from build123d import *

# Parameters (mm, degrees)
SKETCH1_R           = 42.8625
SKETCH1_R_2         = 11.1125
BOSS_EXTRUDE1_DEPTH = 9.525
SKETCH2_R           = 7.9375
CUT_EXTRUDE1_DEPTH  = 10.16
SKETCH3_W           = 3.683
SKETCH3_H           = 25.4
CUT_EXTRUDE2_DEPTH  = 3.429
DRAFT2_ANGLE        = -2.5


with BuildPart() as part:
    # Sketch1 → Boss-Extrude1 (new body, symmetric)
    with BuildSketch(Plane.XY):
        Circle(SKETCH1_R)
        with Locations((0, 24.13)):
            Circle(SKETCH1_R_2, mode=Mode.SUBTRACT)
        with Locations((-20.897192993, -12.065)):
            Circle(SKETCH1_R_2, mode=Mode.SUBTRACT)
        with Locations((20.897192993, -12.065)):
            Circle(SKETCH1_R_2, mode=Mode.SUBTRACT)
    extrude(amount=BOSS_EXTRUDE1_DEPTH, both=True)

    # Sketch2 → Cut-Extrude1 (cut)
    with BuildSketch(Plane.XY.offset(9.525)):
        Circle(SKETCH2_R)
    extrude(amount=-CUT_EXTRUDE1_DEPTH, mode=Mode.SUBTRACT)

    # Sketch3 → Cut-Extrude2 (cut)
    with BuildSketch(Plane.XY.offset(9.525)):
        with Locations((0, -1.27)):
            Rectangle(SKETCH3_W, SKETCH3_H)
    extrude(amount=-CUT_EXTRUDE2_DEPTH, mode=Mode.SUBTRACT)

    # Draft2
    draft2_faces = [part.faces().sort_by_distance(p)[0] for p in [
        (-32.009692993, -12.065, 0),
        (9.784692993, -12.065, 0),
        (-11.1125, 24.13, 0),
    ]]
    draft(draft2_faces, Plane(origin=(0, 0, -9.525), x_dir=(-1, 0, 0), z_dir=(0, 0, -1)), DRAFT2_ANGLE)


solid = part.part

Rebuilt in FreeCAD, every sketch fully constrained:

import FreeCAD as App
import Part
import Sketcher

V = App.Vector
Q = App.Units.Quantity


def faces_at(feature, points):
    """Names of the faces that lie closest to the given points."""
    faces = feature.Shape.Faces
    near = lambda p: min(range(len(faces)), key=lambda i: faces[i].distToShape(Part.Vertex(*p))[0])
    return sorted({f"Face{near(p) + 1}" for p in points})


def add_polygon(sketch, points):
    """Adds a closed chain of lines whose ends are joined by coincident constraints."""
    first, n = sketch.GeometryCount, len(points)
    for a, b in zip(points, points[1:] + points[:1]):
        sketch.addGeometry(Part.LineSegment(App.Vector(*a, 0), App.Vector(*b, 0)), False)
    for i in range(n):
        sketch.addConstraint(Sketcher.Constraint("Coincident", first + i, 2, first + (i + 1) % n, 1))

doc = App.newDocument("Part")
params = doc.addObject("Spreadsheet::Sheet", "Params")
for row, (alias, value) in enumerate([
    ("sketch1_diameter", "3.375 in"),
    ("sketch1_diameter2", "0.875 in"),
    ("pad1_length", "0.75 in"),
    ("sketch2_diameter", "0.625 in"),
    ("pocket1_length", "0.4 in"),
    ("sketch3_height", "1 in"),
    ("sketch3_width", "0.145 in"),
    ("pocket2_length", "0.135 in"),
    ("draft_angle", "2.5 deg"),
], start=1):
    params.set(f"A{row}", alias)
    params.set(f"B{row}", "=" + value)
    params.setAlias(f"B{row}", alias)

body = doc.addObject("PartDesign::Body", "Body")

# Sketch on XY plane
sketch1 = doc.addObject("Sketcher::SketchObject", "Sketch")
body.addObject(sketch1)
sketch1.AttachmentSupport = (doc.XY_Plane, [""])
sketch1.MapMode = "FlatFace"
sketch1.addGeometry(Part.Circle(V(0, 0, 0), V(0, 0, 1), 43), False)
sketch1.addGeometry(Part.Circle(V(-21, -12, 0), V(0, 0, 1), 11), False)
sketch1.addGeometry(Part.Circle(V(21, -12, 0), V(0, 0, 1), 11), False)
sketch1.addGeometry(Part.Circle(V(0, 24, 0), V(0, 0, 1), 11), False)
sketch1.addConstraint(Sketcher.Constraint("Coincident", 0, 3, -1, 1))
sketch1.addConstraint(Sketcher.Constraint("Equal", 1, 2))
sketch1.addConstraint(Sketcher.Constraint("Equal", 2, 3))
sketch1.addConstraint(Sketcher.Constraint("Symmetric", 1, 3, 2, 3, -2))
sketch1.addConstraint(Sketcher.Constraint("PointOnObject", 3, 3, -2))
sketch1.addConstraint(Sketcher.Constraint("Diameter", 0, Q("3.375 in")))
sketch1.addConstraint(Sketcher.Constraint("Diameter", 1, Q("0.875 in")))
sketch1.addConstraint(Sketcher.Constraint("DistanceY", -1, 1, 3, 3, Q("0.95 in")))
sketch1.addConstraint(Sketcher.Constraint("DistanceY", 1, 3, -1, 1, Q("0.475 in")))
sketch1.addConstraint(Sketcher.Constraint("DistanceX", 1, 3, -1, 1, 20.897193))
sketch1.setExpression("Constraints[5]", "Params.sketch1_diameter")
sketch1.setExpression("Constraints[6]", "Params.sketch1_diameter2")
pad1 = doc.addObject("PartDesign::Pad", "Pad")
body.addObject(pad1)
pad1.Profile = sketch1
pad1.setExpression("Length", "Params.pad1_length")
pad1.Midplane = True

# Sketch on XY plane
sketch2 = doc.addObject("Sketcher::SketchObject", "Sketch001")
body.addObject(sketch2)
sketch2.AttachmentSupport = (doc.XY_Plane, [""])
sketch2.MapMode = "FlatFace"
sketch2.AttachmentOffset = App.Placement(V(0, 0, 0.375 * 25.4), App.Rotation())
sketch2.addGeometry(Part.Circle(V(0, 0, 0), V(0, 0, 1), 8), False)
sketch2.addConstraint(Sketcher.Constraint("Coincident", 0, 3, -1, 1))
sketch2.addConstraint(Sketcher.Constraint("Diameter", 0, Q("0.625 in")))
sketch2.setExpression("Constraints[1]", "Params.sketch2_diameter")
pocket1 = doc.addObject("PartDesign::Pocket", "Pocket")
body.addObject(pocket1)
pocket1.Profile = sketch2
pocket1.setExpression("Length", "Params.pocket1_length")

# Sketch on XY plane
sketch3 = doc.addObject("Sketcher::SketchObject", "Sketch002")
body.addObject(sketch3)
sketch3.AttachmentSupport = (doc.XY_Plane, [""])
sketch3.MapMode = "FlatFace"
sketch3.AttachmentOffset = App.Placement(V(0, 0, 0.375 * 25.4), App.Rotation())
add_polygon(sketch3, [(-1.8, 11.4), (-1.8, -14), (1.8, -14), (1.8, 11.4)])  # lines 0-3
sketch3.addConstraint(Sketcher.Constraint("Vertical", 0))
sketch3.addConstraint(Sketcher.Constraint("Horizontal", 1))
sketch3.addConstraint(Sketcher.Constraint("Vertical", 2))
sketch3.addConstraint(Sketcher.Constraint("Horizontal", 3))
sketch3.addConstraint(Sketcher.Constraint("DistanceY", 0, 2, 0, 1, Q("1 in")))
sketch3.addConstraint(Sketcher.Constraint("DistanceX", 1, 1, 1, 2, Q("0.145 in")))
sketch3.addConstraint(Sketcher.Constraint("DistanceY", 0, 2, -1, 1, Q("0.55 in")))
sketch3.addConstraint(Sketcher.Constraint("DistanceX", 0, 2, -1, 1, Q("0.0725 in")))
sketch3.setExpression("Constraints[8]", "Params.sketch3_height")
sketch3.setExpression("Constraints[9]", "Params.sketch3_width")
pocket2 = doc.addObject("PartDesign::Pocket", "Pocket001")
body.addObject(pocket2)
pocket2.Profile = sketch3
pocket2.setExpression("Length", "Params.pocket2_length")
doc.recompute()

datumplane = doc.addObject("PartDesign::Plane", "DatumPlane")
body.addObject(datumplane)
datumplane.AttachmentSupport = (doc.XY_Plane, [""])
datumplane.MapMode = "FlatFace"
datumplane.AttachmentOffset = App.Placement(V(0, 0, -0.375 * 25.4), App.Rotation())
draft = doc.addObject("PartDesign::Draft", "Draft")
body.addObject(draft)
draft.Base = (pocket2, faces_at(pocket2, [(-32.01, -12.065, 0), (9.785, -12.065, 0), (-11.113, 24.13, 0)]))
draft.NeutralPlane = (datumplane, [""])
draft.setExpression("Angle", "Params.draft_angle")
draft.Reversed = False

doc.recompute()
